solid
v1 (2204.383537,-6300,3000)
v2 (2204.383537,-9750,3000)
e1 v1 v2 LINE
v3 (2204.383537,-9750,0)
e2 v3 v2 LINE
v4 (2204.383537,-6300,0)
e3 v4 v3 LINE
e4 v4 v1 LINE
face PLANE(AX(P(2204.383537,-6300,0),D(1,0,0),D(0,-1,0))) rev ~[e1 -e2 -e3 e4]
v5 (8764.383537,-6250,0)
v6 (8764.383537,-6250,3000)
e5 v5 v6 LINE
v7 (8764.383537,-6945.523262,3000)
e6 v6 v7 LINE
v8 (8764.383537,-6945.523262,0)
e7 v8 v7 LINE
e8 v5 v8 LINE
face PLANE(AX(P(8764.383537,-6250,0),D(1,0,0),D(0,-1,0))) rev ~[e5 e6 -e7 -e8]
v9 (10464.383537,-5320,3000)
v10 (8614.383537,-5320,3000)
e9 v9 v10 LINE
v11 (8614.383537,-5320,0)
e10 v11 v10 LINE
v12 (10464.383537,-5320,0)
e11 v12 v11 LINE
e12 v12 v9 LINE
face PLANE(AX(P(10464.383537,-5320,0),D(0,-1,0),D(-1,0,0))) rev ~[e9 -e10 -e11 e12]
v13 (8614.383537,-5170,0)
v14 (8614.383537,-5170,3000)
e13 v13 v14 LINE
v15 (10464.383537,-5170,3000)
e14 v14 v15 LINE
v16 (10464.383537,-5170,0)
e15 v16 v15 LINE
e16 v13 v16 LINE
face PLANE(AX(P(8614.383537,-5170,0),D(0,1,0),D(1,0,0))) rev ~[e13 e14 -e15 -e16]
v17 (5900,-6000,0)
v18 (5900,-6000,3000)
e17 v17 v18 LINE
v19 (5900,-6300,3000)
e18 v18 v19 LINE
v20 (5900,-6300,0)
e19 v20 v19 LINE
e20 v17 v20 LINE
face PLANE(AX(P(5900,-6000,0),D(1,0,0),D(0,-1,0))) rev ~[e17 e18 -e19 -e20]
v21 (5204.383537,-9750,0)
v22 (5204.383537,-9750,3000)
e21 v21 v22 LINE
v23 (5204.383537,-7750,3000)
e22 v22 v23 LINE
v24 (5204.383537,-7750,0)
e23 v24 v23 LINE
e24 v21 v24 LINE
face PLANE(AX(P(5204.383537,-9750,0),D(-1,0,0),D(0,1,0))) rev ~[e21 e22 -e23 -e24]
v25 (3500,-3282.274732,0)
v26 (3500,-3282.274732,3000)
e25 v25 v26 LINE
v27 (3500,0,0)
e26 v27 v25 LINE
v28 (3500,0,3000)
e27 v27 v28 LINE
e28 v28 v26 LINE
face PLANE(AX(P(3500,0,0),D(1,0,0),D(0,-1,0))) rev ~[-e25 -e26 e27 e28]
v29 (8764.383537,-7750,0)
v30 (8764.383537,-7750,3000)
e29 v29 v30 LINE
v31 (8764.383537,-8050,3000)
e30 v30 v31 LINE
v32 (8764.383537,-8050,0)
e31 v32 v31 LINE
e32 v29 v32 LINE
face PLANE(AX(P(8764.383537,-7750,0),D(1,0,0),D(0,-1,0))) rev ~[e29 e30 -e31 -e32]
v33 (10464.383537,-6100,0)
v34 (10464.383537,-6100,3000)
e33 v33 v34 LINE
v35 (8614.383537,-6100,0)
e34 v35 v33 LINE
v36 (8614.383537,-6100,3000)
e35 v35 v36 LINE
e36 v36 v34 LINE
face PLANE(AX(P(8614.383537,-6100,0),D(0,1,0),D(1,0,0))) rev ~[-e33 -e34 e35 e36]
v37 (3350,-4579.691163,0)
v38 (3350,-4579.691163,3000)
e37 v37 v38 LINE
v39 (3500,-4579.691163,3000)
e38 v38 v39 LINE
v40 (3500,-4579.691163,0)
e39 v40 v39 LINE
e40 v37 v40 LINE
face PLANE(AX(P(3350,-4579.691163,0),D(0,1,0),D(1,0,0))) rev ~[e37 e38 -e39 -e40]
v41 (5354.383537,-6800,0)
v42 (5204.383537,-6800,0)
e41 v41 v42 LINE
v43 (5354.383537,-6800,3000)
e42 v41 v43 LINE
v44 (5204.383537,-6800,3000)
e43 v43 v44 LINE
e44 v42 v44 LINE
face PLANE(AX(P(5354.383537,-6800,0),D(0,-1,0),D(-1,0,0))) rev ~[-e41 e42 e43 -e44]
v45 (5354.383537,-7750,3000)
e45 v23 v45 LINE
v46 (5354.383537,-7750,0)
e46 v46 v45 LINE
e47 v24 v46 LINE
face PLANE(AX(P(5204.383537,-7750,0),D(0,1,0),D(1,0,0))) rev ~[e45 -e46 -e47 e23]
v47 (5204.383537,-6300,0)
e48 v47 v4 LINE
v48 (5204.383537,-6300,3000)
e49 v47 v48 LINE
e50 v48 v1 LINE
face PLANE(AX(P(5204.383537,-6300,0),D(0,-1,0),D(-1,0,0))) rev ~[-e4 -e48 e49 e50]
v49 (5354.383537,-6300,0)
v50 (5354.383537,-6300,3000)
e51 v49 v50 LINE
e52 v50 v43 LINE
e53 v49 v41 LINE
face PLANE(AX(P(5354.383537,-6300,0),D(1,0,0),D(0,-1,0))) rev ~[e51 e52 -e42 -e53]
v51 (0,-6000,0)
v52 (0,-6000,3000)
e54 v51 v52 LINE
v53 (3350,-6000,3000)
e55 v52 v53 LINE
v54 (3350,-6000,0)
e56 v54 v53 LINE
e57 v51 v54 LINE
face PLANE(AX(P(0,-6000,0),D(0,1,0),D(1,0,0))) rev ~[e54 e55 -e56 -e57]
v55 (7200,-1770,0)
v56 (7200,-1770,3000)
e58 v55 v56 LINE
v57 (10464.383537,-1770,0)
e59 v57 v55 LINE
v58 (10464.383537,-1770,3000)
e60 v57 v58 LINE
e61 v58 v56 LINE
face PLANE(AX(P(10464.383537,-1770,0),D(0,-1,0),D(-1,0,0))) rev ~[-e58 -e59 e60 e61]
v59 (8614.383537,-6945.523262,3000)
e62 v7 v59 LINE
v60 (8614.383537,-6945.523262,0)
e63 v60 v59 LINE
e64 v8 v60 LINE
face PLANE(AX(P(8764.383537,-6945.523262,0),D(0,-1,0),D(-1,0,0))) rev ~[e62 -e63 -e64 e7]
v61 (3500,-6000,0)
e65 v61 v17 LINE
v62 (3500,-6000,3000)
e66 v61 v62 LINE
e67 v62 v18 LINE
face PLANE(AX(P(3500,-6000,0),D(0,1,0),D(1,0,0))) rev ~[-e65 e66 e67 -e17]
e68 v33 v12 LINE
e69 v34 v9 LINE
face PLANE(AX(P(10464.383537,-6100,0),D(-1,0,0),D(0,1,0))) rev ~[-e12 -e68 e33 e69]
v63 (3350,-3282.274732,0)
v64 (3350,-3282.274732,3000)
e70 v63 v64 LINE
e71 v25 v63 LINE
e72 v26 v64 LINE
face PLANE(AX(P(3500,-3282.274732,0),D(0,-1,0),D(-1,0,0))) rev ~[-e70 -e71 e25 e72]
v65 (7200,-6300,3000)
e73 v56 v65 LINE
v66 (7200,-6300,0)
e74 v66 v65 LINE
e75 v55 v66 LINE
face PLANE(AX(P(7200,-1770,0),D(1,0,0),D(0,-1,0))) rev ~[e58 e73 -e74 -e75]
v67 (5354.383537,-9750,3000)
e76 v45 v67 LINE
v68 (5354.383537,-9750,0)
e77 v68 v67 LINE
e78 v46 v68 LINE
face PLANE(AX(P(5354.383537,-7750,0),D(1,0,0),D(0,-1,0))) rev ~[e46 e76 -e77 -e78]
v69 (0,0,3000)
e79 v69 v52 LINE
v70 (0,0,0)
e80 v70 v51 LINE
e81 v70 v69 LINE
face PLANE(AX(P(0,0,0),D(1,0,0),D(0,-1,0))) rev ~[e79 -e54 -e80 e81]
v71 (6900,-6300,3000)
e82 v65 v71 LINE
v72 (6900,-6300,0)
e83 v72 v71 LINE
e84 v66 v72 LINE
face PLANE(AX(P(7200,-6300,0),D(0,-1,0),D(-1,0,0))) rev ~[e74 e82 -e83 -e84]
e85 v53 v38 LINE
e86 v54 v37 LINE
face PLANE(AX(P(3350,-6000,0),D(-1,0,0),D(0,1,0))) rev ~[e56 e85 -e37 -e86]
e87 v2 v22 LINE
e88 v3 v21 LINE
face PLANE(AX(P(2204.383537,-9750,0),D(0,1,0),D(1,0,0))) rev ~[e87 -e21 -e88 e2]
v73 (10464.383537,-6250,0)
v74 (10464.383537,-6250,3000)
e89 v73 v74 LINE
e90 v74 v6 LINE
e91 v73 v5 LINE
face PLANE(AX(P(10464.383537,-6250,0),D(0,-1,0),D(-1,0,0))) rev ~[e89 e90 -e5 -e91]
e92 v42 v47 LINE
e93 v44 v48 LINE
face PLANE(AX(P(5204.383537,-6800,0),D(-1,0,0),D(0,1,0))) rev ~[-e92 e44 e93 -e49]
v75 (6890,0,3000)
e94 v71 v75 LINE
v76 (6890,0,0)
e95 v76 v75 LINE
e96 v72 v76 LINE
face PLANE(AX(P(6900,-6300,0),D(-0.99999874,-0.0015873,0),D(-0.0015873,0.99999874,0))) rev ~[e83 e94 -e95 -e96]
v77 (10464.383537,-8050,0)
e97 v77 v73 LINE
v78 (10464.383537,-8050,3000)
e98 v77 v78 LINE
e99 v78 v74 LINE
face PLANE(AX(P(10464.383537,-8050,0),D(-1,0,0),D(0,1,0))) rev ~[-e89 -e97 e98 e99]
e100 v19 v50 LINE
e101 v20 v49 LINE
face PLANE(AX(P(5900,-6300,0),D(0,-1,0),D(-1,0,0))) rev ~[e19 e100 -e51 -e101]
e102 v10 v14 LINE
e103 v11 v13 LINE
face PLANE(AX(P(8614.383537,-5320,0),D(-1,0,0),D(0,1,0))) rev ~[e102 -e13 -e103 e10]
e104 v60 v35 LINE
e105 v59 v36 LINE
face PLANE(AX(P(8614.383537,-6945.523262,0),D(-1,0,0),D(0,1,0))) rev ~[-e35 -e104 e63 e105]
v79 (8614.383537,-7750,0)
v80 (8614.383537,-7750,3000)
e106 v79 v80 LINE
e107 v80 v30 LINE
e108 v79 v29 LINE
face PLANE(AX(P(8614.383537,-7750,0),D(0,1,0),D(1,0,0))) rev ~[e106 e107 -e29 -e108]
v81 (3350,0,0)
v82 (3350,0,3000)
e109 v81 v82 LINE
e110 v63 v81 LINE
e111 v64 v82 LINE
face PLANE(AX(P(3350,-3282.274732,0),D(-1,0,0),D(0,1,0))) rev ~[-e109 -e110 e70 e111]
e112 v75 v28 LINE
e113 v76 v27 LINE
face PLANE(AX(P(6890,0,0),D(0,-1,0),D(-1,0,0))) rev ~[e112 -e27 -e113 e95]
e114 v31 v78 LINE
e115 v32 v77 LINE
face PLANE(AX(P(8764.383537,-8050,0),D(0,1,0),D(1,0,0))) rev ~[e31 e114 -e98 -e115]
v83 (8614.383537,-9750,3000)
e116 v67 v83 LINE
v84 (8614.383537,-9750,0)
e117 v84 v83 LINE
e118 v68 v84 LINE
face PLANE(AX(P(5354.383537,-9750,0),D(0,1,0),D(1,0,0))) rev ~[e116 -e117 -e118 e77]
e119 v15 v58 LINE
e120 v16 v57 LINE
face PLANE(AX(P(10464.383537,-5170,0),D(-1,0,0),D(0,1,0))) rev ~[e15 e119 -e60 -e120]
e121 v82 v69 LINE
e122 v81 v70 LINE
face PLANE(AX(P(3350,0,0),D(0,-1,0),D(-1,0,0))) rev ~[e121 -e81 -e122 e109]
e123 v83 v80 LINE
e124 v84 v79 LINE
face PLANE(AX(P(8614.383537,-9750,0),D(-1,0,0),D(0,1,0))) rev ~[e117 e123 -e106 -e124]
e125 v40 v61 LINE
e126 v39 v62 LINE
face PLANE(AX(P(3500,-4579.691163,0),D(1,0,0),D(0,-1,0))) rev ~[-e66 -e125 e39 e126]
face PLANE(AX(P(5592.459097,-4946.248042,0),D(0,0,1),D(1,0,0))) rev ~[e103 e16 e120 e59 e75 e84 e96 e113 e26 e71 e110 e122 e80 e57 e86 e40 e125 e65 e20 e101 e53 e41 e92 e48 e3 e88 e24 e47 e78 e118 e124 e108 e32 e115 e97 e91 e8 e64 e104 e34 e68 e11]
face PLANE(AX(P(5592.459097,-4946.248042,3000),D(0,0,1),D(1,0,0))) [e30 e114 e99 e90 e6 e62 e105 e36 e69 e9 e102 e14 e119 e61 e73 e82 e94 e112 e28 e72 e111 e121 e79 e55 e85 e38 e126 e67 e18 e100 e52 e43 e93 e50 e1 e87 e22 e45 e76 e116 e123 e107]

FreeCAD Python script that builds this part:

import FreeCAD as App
import Part
import Sketcher
from FreeCAD import Vector
Q = App.Units.Quantity

doc = App.newDocument("Part")
body = doc.addObject("PartDesign::Body", "Body")

# Sketch on XY plane
sketch1 = body.newObject("Sketcher::SketchObject", "Sketch")
sketch1.AttachmentSupport = (doc.getObject("XY_Plane"), [""])
sketch1.MapMode = "FlatFace"
sketch1.addGeometry([
    Part.LineSegment(Vector(3350, 0, 0), Vector(0, 0, 0)),  # 0
    Part.LineSegment(Vector(0, 0, 0), Vector(0, -6000, 0)),  # 1
    Part.LineSegment(Vector(0, -6000, 0), Vector(3350, -6000, 0)),  # 2
    Part.LineSegment(Vector(3350, -6000, 0), Vector(3350, -4580, 0)),  # 3
    Part.LineSegment(Vector(3350, -4580, 0), Vector(3500, -4580, 0)),  # 4
    Part.LineSegment(Vector(3500, -4580, 0), Vector(3500, -6000, 0)),  # 5
    Part.LineSegment(Vector(3500, -6000, 0), Vector(5900, -6000, 0)),  # 6
    Part.LineSegment(Vector(5900, -6000, 0), Vector(5900, -6300, 0)),  # 7
    Part.LineSegment(Vector(5900, -6300, 0), Vector(5354, -6300, 0)),  # 8
    Part.LineSegment(Vector(5354, -6300, 0), Vector(5354, -6800, 0)),  # 9
    Part.LineSegment(Vector(5354, -6800, 0), Vector(5204, -6800, 0)),  # 10
    Part.LineSegment(Vector(5204, -6800, 0), Vector(5204, -6300, 0)),  # 11
    Part.LineSegment(Vector(5204, -6300, 0), Vector(2204, -6300, 0)),  # 12
    Part.LineSegment(Vector(2204, -6300, 0), Vector(2204, -9750, 0)),  # 13
    Part.LineSegment(Vector(2204, -9750, 0), Vector(5204, -9750, 0)),  # 14
    Part.LineSegment(Vector(5204, -9750, 0), Vector(5204, -7750, 0)),  # 15
    Part.LineSegment(Vector(5204, -7750, 0), Vector(5354, -7750, 0)),  # 16
    Part.LineSegment(Vector(5354, -7750, 0), Vector(5354, -9750, 0)),  # 17
    Part.LineSegment(Vector(5354, -9750, 0), Vector(8614, -9750, 0)),  # 18
    Part.LineSegment(Vector(8614, -9750, 0), Vector(8614, -7750, 0)),  # 19
    Part.LineSegment(Vector(8614, -7750, 0), Vector(8764, -7750, 0)),  # 20
    Part.LineSegment(Vector(8764, -7750, 0), Vector(8764, -8050, 0)),  # 21
    Part.LineSegment(Vector(8764, -8050, 0), Vector(10464, -8050, 0)),  # 22
    Part.LineSegment(Vector(10464, -8050, 0), Vector(10464, -6250, 0)),  # 23
    Part.LineSegment(Vector(10464, -6250, 0), Vector(8764, -6250, 0)),  # 24
    Part.LineSegment(Vector(8764, -6250, 0), Vector(8764, -6946, 0)),  # 25
    Part.LineSegment(Vector(8764, -6946, 0), Vector(8614, -6946, 0)),  # 26
    Part.LineSegment(Vector(8614, -6946, 0), Vector(8614, -6100, 0)),  # 27
    Part.LineSegment(Vector(8614, -6100, 0), Vector(10464, -6100, 0)),  # 28
    Part.LineSegment(Vector(10464, -6100, 0), Vector(10464, -5320, 0)),  # 29
    Part.LineSegment(Vector(10464, -5320, 0), Vector(8614, -5320, 0)),  # 30
    Part.LineSegment(Vector(8614, -5320, 0), Vector(8614, -5170, 0)),  # 31
    Part.LineSegment(Vector(8614, -5170, 0), Vector(10464, -5170, 0)),  # 32
    Part.LineSegment(Vector(10464, -5170, 0), Vector(10464, -1770, 0)),  # 33
    Part.LineSegment(Vector(10464, -1770, 0), Vector(7200, -1770, 0)),  # 34
    Part.LineSegment(Vector(7200, -1770, 0), Vector(7200, -6300, 0)),  # 35
    Part.LineSegment(Vector(7200, -6300, 0), Vector(6900, -6300, 0)),  # 36
    Part.LineSegment(Vector(6900, -6300, 0), Vector(6890, 0, 0)),  # 37
    Part.LineSegment(Vector(6890, 0, 0), Vector(3500, 0, 0)),  # 38
    Part.LineSegment(Vector(3500, 0, 0), Vector(3500, -3282, 0)),  # 39
    Part.LineSegment(Vector(3500, -3282, 0), Vector(3350, -3282, 0)),  # 40
    Part.LineSegment(Vector(3350, -3282, 0), Vector(3350, 0, 0)),  # 41
], False)
sketch1.addConstraint([
    Sketcher.Constraint("Coincident", 0, 2, 1, 1),
    Sketcher.Constraint("Coincident", 1, 2, 2, 1),
    Sketcher.Constraint("Coincident", 2, 2, 3, 1),
    Sketcher.Constraint("Coincident", 3, 2, 4, 1),
    Sketcher.Constraint("Coincident", 4, 2, 5, 1),
    Sketcher.Constraint("Coincident", 5, 2, 6, 1),
    Sketcher.Constraint("Coincident", 6, 2, 7, 1),
    Sketcher.Constraint("Coincident", 7, 2, 8, 1),
    Sketcher.Constraint("Coincident", 8, 2, 9, 1),
    Sketcher.Constraint("Coincident", 9, 2, 10, 1),
    Sketcher.Constraint("Coincident", 10, 2, 11, 1),
    Sketcher.Constraint("Coincident", 11, 2, 12, 1),
    Sketcher.Constraint("Coincident", 12, 2, 13, 1),
    Sketcher.Constraint("Coincident", 13, 2, 14, 1),
    Sketcher.Constraint("Coincident", 14, 2, 15, 1),
    Sketcher.Constraint("Coincident", 15, 2, 16, 1),
    Sketcher.Constraint("Coincident", 16, 2, 17, 1),
    Sketcher.Constraint("Coincident", 17, 2, 18, 1),
    Sketcher.Constraint("Coincident", 18, 2, 19, 1),
    Sketcher.Constraint("Coincident", 19, 2, 20, 1),
    Sketcher.Constraint("Coincident", 20, 2, 21, 1),
    Sketcher.Constraint("Coincident", 21, 2, 22, 1),
    Sketcher.Constraint("Coincident", 22, 2, 23, 1),
    Sketcher.Constraint("Coincident", 23, 2, 24, 1),
    Sketcher.Constraint("Coincident", 24, 2, 25, 1),
    Sketcher.Constraint("Coincident", 25, 2, 26, 1),
    Sketcher.Constraint("Coincident", 26, 2, 27, 1),
    Sketcher.Constraint("Coincident", 27, 2, 28, 1),
    Sketcher.Constraint("Coincident", 28, 2, 29, 1),
    Sketcher.Constraint("Coincident", 29, 2, 30, 1),
    Sketcher.Constraint("Coincident", 30, 2, 31, 1),
    Sketcher.Constraint("Coincident", 31, 2, 32, 1),
    Sketcher.Constraint("Coincident", 32, 2, 33, 1),
    Sketcher.Constraint("Coincident", 33, 2, 34, 1),
    Sketcher.Constraint("Coincident", 34, 2, 35, 1),
    Sketcher.Constraint("Coincident", 35, 2, 36, 1),
    Sketcher.Constraint("Coincident", 36, 2, 37, 1),
    Sketcher.Constraint("Coincident", 37, 2, 38, 1),
    Sketcher.Constraint("Coincident", 38, 2, 39, 1),
    Sketcher.Constraint("Coincident", 39, 2, 40, 1),
    Sketcher.Constraint("Coincident", 40, 2, 41, 1),
    Sketcher.Constraint("Coincident", 41, 2, 0, 1),
    Sketcher.Constraint("Horizontal", 0),
    Sketcher.Constraint("Vertical", 1),
    Sketcher.Constraint("Horizontal", 2),
    Sketcher.Constraint("Vertical", 3),
    Sketcher.Constraint("Horizontal", 4),
    Sketcher.Constraint("Vertical", 5),
    Sketcher.Constraint("Horizontal", 6),
    Sketcher.Constraint("Vertical", 7),
    Sketcher.Constraint("Horizontal", 8),
    Sketcher.Constraint("Vertical", 9),
    Sketcher.Constraint("Horizontal", 10),
    Sketcher.Constraint("Vertical", 11),
    Sketcher.Constraint("Horizontal", 12),
    Sketcher.Constraint("Vertical", 13),
    Sketcher.Constraint("Horizontal", 14),
    Sketcher.Constraint("Vertical", 15),
    Sketcher.Constraint("Horizontal", 16),
    Sketcher.Constraint("Vertical", 17),
    Sketcher.Constraint("Horizontal", 18),
    Sketcher.Constraint("Vertical", 19),
    Sketcher.Constraint("Horizontal", 20),
    Sketcher.Constraint("Vertical", 21),
    Sketcher.Constraint("Horizontal", 22),
    Sketcher.Constraint("Vertical", 23),
    Sketcher.Constraint("Horizontal", 24),
    Sketcher.Constraint("Vertical", 25),
    Sketcher.Constraint("Horizontal", 26),
    Sketcher.Constraint("Vertical", 27),
    Sketcher.Constraint("Horizontal", 28),
    Sketcher.Constraint("Vertical", 29),
    Sketcher.Constraint("Horizontal", 30),
    Sketcher.Constraint("Vertical", 31),
    Sketcher.Constraint("Horizontal", 32),
    Sketcher.Constraint("Vertical", 33),
    Sketcher.Constraint("Horizontal", 34),
    Sketcher.Constraint("Vertical", 35),
    Sketcher.Constraint("Horizontal", 36),
    Sketcher.Constraint("Horizontal", 38),
    Sketcher.Constraint("Vertical", 39),
    Sketcher.Constraint("Horizontal", 40),
    Sketcher.Constraint("Vertical", 41),
    Sketcher.Constraint("Coincident", 0, 2, -1, 1),
    Sketcher.Constraint("PointOnObject", 37, 2, -1),
    Sketcher.Constraint("Horizontal", 2, 2, 5, 2),
    Sketcher.Constraint("Horizontal", 8, 2, 11, 2),
    Sketcher.Constraint("Horizontal", 14, 2, 17, 2),
    Sketcher.Constraint("Horizontal", 16, 2, 19, 2),
    Sketcher.Constraint("Horizontal", 12, 2, 35, 2),
    Sketcher.Constraint("Vertical", 11, 2, 14, 2),
    Sketcher.Constraint("Vertical", 9, 2, 16, 2),
    Sketcher.Constraint("Vertical", 21, 2, 24, 2),
    Sketcher.Constraint("Vertical", 19, 2, 26, 2),
    Sketcher.Constraint("Vertical", 23, 2, 28, 2),
    Sketcher.Constraint("Vertical", 27, 2, 30, 2),
    Sketcher.Constraint("Vertical", 29, 2, 32, 2),
    Sketcher.Constraint("Vertical", 5, 2, 38, 2),
    Sketcher.Constraint("Vertical", 3, 2, 40, 2),
    Sketcher.Constraint("Equal", 4, 10),
    Sketcher.Constraint("Equal", 16, 20),
    Sketcher.Constraint("Equal", 36, 7),
    Sketcher.Constraint("Equal", 7, 21),
    Sketcher.Constraint("Equal", 40, 31),
    Sketcher.Constraint("DistanceX", 0, 2, 0, 1, Q("3350 mm")),
    Sketcher.Constraint("DistanceX", 4, 1, 4, 2, Q("150 mm")),
    Sketcher.Constraint("DistanceX", 6, 1, 6, 2, Q("2400 mm")),
    Sketcher.Constraint("DistanceX", 12, 2, 12, 1, Q("3000 mm")),
    Sketcher.Constraint("DistanceX", 18, 1, 18, 2, Q("3260 mm")),
    Sketcher.Constraint("DistanceX", 22, 1, 22, 2, Q("1700 mm")),
    Sketcher.Constraint("DistanceX", 36, 2, 36, 1, Q("300 mm")),
    Sketcher.Constraint("DistanceX", 38, 2, 38, 1, Q("3390 mm")),
    Sketcher.Constraint("DistanceY", 1, 2, 1, 1, Q("6000 mm")),
    Sketcher.Constraint("DistanceY", 9, 2, 9, 1, Q("500 mm")),
    Sketcher.Constraint("DistanceY", 13, 2, 13, 1, Q("3450 mm")),
    Sketcher.Constraint("DistanceY", 15, 1, 15, 2, Q("2000 mm")),
    Sketcher.Constraint("DistanceY", 23, 1, 23, 2, Q("1800 mm")),
    Sketcher.Constraint("DistanceY", 29, 1, 29, 2, Q("780 mm")),
    Sketcher.Constraint("DistanceY", 33, 1, 33, 2, Q("3400 mm")),
    Sketcher.Constraint("DistanceY", 35, 2, 35, 1, Q("4530 mm")),
    Sketcher.Constraint("DistanceX", -1, 1, 34, 2, Q("7200 mm")),
    Sketcher.Constraint("DistanceY", 25, 2, 25, 1, Q("695.523262 mm")),
    Sketcher.Constraint("DistanceY", 39, 2, 39, 1, Q("3282.274732 mm")),
    Sketcher.Constraint("DistanceX", 8, 2, 8, 1, Q("545.616463 mm")),
    Sketcher.Constraint("DistanceY", 3, 1, 3, 2, Q("1420.308837 mm")),
])
pad1 = body.newObject("PartDesign::Pad", "Pad")
pad1.Profile = sketch1
pad1.Length = 3000

doc.recompute()
